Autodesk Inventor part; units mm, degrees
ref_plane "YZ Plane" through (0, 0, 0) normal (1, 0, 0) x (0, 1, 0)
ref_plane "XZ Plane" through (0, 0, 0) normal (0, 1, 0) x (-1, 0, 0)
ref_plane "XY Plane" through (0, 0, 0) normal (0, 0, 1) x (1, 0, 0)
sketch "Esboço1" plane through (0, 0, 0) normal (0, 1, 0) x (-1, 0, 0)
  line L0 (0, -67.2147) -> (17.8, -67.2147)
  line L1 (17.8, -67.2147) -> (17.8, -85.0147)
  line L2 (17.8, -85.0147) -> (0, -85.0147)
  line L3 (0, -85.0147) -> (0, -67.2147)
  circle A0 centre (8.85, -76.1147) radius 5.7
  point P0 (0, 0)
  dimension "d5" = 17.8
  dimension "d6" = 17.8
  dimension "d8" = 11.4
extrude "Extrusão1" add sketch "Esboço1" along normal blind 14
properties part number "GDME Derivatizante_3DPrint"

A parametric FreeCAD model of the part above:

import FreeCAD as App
import Part
import Sketcher

V = App.Vector
Q = App.Units.Quantity

doc = App.newDocument("Part")
body = doc.addObject("PartDesign::Body", "Body")

# Sketch on XZ plane
sketch1 = body.newObject("Sketcher::SketchObject", "Sketch")
sketch1.AttachmentSupport = (doc.getObject("XZ_Plane"), [""])
sketch1.MapMode = "FlatFace"
sketch1.addGeometry(Part.LineSegment(V(-17.8, -67.2147, 0), V(0, -67.2147, 0)), False)
sketch1.addGeometry(Part.LineSegment(V(0, -67.2147, 0), V(0, -85.0147, 0)), False)
sketch1.addGeometry(Part.LineSegment(V(0, -85.0147, 0), V(-17.8, -85.0147, 0)), False)
sketch1.addGeometry(Part.LineSegment(V(-17.8, -85.0147, 0), V(-17.8, -67.2147, 0)), False)
sketch1.addGeometry(Part.Circle(V(-8.85, -76.1147, 0), V(0, 0, 1), 5.7), False)
sketch1.addConstraint(Sketcher.Constraint("Coincident", 0, 2, 1, 1))
sketch1.addConstraint(Sketcher.Constraint("Coincident", 1, 2, 2, 1))
sketch1.addConstraint(Sketcher.Constraint("Coincident", 2, 2, 3, 1))
sketch1.addConstraint(Sketcher.Constraint("Coincident", 3, 2, 0, 1))
sketch1.addConstraint(Sketcher.Constraint("Horizontal", 0))
sketch1.addConstraint(Sketcher.Constraint("Vertical", 1))
sketch1.addConstraint(Sketcher.Constraint("Horizontal", 2))
sketch1.addConstraint(Sketcher.Constraint("Vertical", 3))
sketch1.addConstraint(Sketcher.Constraint("PointOnObject", 0, 2, -2))
sketch1.addConstraint(Sketcher.Constraint("Equal", 2, 1))
sketch1.addConstraint(Sketcher.Constraint("Diameter", 4, Q("11.4 mm")))
sketch1.addConstraint(Sketcher.Constraint("DistanceX", 0, 1, 0, 2, Q("17.8 mm")))
sketch1.addConstraint(Sketcher.Constraint("DistanceY", 4, 3, 0, 2, Q("8.9 mm")))
sketch1.addConstraint(Sketcher.Constraint("DistanceX", 4, 3, -1, 1, Q("8.85 mm")))
sketch1.addConstraint(Sketcher.Constraint("DistanceY", 4, 3, -1, 1, Q("76.1147 mm")))
pad1 = body.newObject("PartDesign::Pad", "Pad")
pad1.Profile = sketch1
pad1.Length = 14
pad1.Reversed = True

doc.recompute()
